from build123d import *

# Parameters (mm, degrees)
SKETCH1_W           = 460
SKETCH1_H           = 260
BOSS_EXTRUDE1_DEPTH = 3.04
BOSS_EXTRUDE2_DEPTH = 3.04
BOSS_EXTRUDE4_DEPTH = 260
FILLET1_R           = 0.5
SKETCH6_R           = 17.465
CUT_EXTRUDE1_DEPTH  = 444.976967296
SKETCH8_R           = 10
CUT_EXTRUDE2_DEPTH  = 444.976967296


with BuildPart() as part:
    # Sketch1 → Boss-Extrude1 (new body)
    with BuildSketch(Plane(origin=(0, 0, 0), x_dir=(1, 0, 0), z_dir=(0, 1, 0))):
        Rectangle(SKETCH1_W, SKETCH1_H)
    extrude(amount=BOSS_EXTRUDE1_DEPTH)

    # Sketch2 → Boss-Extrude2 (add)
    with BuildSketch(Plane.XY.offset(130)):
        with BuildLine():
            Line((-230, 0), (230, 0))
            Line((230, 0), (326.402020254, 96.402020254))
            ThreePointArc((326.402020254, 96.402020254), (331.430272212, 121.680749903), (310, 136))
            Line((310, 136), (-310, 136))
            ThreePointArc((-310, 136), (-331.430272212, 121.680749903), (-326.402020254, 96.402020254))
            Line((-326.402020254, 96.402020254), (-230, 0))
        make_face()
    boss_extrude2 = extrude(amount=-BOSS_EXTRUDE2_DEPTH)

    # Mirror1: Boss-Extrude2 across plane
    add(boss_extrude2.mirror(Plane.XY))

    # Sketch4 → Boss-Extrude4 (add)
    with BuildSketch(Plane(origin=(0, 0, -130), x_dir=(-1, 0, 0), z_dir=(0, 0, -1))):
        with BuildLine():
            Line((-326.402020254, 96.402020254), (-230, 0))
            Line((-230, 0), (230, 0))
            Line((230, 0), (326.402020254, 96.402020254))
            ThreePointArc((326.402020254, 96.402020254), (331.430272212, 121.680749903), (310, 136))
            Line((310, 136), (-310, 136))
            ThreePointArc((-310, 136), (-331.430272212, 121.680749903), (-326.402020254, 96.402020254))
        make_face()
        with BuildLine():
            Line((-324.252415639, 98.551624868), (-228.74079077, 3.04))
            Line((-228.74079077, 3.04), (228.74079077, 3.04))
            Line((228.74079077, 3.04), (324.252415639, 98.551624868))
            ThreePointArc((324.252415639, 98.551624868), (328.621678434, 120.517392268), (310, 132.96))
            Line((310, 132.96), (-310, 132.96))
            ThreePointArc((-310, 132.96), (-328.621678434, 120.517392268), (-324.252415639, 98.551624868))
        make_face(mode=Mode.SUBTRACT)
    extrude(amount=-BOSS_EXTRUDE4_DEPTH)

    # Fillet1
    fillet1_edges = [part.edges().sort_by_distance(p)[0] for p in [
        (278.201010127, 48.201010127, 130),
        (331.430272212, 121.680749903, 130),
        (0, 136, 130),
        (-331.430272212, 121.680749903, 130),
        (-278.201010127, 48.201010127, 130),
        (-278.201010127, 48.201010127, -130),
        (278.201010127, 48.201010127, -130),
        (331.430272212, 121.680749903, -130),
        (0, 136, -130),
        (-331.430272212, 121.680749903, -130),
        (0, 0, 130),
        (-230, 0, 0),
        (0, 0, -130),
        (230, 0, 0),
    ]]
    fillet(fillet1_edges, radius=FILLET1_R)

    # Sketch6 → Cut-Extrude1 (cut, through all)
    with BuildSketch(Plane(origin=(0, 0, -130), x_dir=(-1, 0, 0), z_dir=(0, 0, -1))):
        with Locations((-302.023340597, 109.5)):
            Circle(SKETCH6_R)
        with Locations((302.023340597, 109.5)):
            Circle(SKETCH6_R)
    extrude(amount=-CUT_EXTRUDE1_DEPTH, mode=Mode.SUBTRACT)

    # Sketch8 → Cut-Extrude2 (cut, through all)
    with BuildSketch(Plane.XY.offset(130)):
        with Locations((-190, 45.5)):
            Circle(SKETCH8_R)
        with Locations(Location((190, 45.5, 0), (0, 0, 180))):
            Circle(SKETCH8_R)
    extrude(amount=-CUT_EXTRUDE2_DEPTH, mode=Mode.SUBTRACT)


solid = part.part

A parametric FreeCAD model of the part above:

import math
import FreeCAD as App
import Part
import Sketcher
Q = App.Units.Quantity


def edges_at(feature, points):
    """Names of the edges that pass closest to the given points."""
    edges = feature.Shape.Edges
    near = lambda p: min(range(len(edges)), key=lambda i: edges[i].distToShape(Part.Vertex(*p))[0])
    return sorted({f"Edge{near(p) + 1}" for p in points})

doc = App.newDocument("Part")
params = doc.addObject("Spreadsheet::Sheet", "Params")
for row, (alias, value) in enumerate([
    ("sketch1_width", "460 mm"),
    ("sketch1_height", "260 mm"),
    ("pad1_length", "3.04 mm"),
    ("sketch2_width", "460 mm"),
    ("sketch2_width2", "620 mm"),
    ("pad2_length", "3.04 mm"),
    ("sketch3_width", "460 mm"),
    ("sketch3_width2", "620 mm"),
    ("pad3_length", "260 mm"),
    ("fillet_radius", "0.5 mm"),
    ("sketch4_diameter", "34.93 mm"),
    ("sketch5_diameter", "20 mm"),
], start=1):
    params.set(f"A{row}", alias)
    params.set(f"B{row}", "=" + value)
    params.setAlias(f"B{row}", alias)

body = doc.addObject("PartDesign::Body", "Body")

# Sketch on XZ plane
sketch1 = body.newObject("Sketcher::SketchObject", "Sketch")
sketch1.AttachmentSupport = (doc.getObject("XZ_Plane"), [""])
sketch1.MapMode = "FlatFace"
sketch1.addGeometry(Part.LineSegment(App.Vector(-230, -130, 0), App.Vector(-230, 130, 0)), False)
sketch1.addGeometry(Part.LineSegment(App.Vector(-230, 130, 0), App.Vector(230, 130, 0)), False)
sketch1.addGeometry(Part.LineSegment(App.Vector(230, 130, 0), App.Vector(230, -130, 0)), False)
sketch1.addGeometry(Part.LineSegment(App.Vector(230, -130, 0), App.Vector(-230, -130, 0)), False)
sketch1.addConstraint(Sketcher.Constraint("Coincident", 0, 2, 1, 1))
sketch1.addConstraint(Sketcher.Constraint("Coincident", 1, 2, 2, 1))
sketch1.addConstraint(Sketcher.Constraint("Coincident", 2, 2, 3, 1))
sketch1.addConstraint(Sketcher.Constraint("Coincident", 3, 2, 0, 1))
sketch1.addConstraint(Sketcher.Constraint("Vertical", 0))
sketch1.addConstraint(Sketcher.Constraint("Horizontal", 1))
sketch1.addConstraint(Sketcher.Constraint("Vertical", 2))
sketch1.addConstraint(Sketcher.Constraint("Horizontal", 3))
sketch1.addConstraint(Sketcher.Constraint("Symmetric", 0, 2, 2, 2, -1, 1))
sketch1.addConstraint(Sketcher.Constraint("DistanceX", 1, 1, 1, 2, Q("460 mm")))
sketch1.addConstraint(Sketcher.Constraint("DistanceY", 0, 1, 0, 2, Q("260 mm")))
sketch1.setExpression("Constraints[9]", "Params.sketch1_width")
sketch1.setExpression("Constraints[10]", "Params.sketch1_height")
pad1 = body.newObject("PartDesign::Pad", "Pad")
pad1.Profile = sketch1
pad1.setExpression("Length", "Params.pad1_length")
pad1.Reversed = True

# Sketch on XY plane
sketch2 = body.newObject("Sketcher::SketchObject", "Sketch001")
sketch2.AttachmentSupport = (doc.getObject("XY_Plane"), [""])
sketch2.MapMode = "FlatFace"
sketch2.AttachmentOffset = App.Placement(App.Vector(0, 0, 130), App.Rotation())
sketch2.addGeometry(Part.LineSegment(App.Vector(-230, 0, 0), App.Vector(230, 0, 0)), False)
sketch2.addGeometry(Part.LineSegment(App.Vector(230, 0, 0), App.Vector(326, 96, 0)), False)
sketch2.addGeometry(Part.ArcOfCircle(Part.Circle(App.Vector(310, 113, 0), App.Vector(0, 0, 1), 23), math.radians(-45), math.radians(90)), False)
sketch2.addGeometry(Part.LineSegment(App.Vector(310, 136, 0), App.Vector(-310, 136, 0)), False)
sketch2.addGeometry(Part.ArcOfCircle(Part.Circle(App.Vector(-310, 113, 0), App.Vector(0, 0, 1), 23), math.radians(90), math.radians(225)), False)
sketch2.addGeometry(Part.LineSegment(App.Vector(-326, 96, 0), App.Vector(-230, 0, 0)), False)
sketch2.addConstraint(Sketcher.Constraint("Coincident", 0, 2, 1, 1))
sketch2.addConstraint(Sketcher.Constraint("Tangent", 1, 2, 2, 1))
sketch2.addConstraint(Sketcher.Constraint("Tangent", 2, 2, 3, 1))
sketch2.addConstraint(Sketcher.Constraint("Tangent", 3, 2, 4, 1))
sketch2.addConstraint(Sketcher.Constraint("Tangent", 4, 2, 5, 1))
sketch2.addConstraint(Sketcher.Constraint("Coincident", 5, 2, 0, 1))
sketch2.addConstraint(Sketcher.Constraint("Horizontal", 0))
sketch2.addConstraint(Sketcher.Constraint("Horizontal", 3))
sketch2.addConstraint(Sketcher.Constraint("Equal", 2, 4))
sketch2.addConstraint(Sketcher.Constraint("Symmetric", 0, 2, 5, 2, -1, 1))
sketch2.addConstraint(Sketcher.Constraint("Perpendicular", 1, 5))
sketch2.addConstraint(Sketcher.Constraint("Horizontal", 1, 2, 4, 2))
sketch2.addConstraint(Sketcher.Constraint("DistanceX", 0, 1, 0, 2, Q("460 mm")))
sketch2.addConstraint(Sketcher.Constraint("DistanceX", 3, 2, 3, 1, Q("620 mm")))
sketch2.addConstraint(Sketcher.Constraint("DistanceY", -1, 1, 2, 2, Q("136 mm")))
sketch2.setExpression("Constraints[12]", "Params.sketch2_width")
sketch2.setExpression("Constraints[13]", "Params.sketch2_width2")
pad2 = body.newObject("PartDesign::Pad", "Pad001")
pad2.Profile = sketch2
pad2.setExpression("Length", "Params.pad2_length")
pad2.Reversed = True
doc.recompute()

mirrored = body.newObject("PartDesign::Mirrored", "Mirrored")
mirrored.Originals = [pad2]
mirrored.MirrorPlane = (doc.getObject("XY_Plane"), [""])
body.Tip = mirrored

# Sketch on XY plane
sketch3 = body.newObject("Sketcher::SketchObject", "Sketch002")
sketch3.AttachmentSupport = (doc.getObject("XY_Plane"), [""])
sketch3.MapMode = "FlatFace"
sketch3.AttachmentOffset = App.Placement(App.Vector(0, 0, -130), App.Rotation())
sketch3.addGeometry(Part.LineSegment(App.Vector(326, 96, 0), App.Vector(230, 0, 0)), False)
sketch3.addGeometry(Part.LineSegment(App.Vector(230, 0, 0), App.Vector(-230, 0, 0)), False)
sketch3.addGeometry(Part.LineSegment(App.Vector(-230, 0, 0), App.Vector(-326, 96, 0)), False)
sketch3.addGeometry(Part.ArcOfCircle(Part.Circle(App.Vector(-310, 113, 0), App.Vector(0, 0, 1), 23), math.radians(90), math.radians(225)), False)
sketch3.addGeometry(Part.LineSegment(App.Vector(-310, 136, 0), App.Vector(310, 136, 0)), False)
sketch3.addGeometry(Part.ArcOfCircle(Part.Circle(App.Vector(310, 113, 0), App.Vector(0, 0, 1), 23), math.radians(-45), math.radians(90)), False)
sketch3.addGeometry(Part.LineSegment(App.Vector(229, 3, 0), App.Vector(324, 99, 0)), False)
sketch3.addGeometry(Part.ArcOfCircle(Part.Circle(App.Vector(310, 113, 0), App.Vector(0, 0, 1), 20), math.radians(-45), math.radians(90)), False)
sketch3.addGeometry(Part.LineSegment(App.Vector(310, 133, 0), App.Vector(-310, 133, 0)), False)
sketch3.addGeometry(Part.ArcOfCircle(Part.Circle(App.Vector(-310, 113, 0), App.Vector(0, 0, 1), 20), math.radians(90), math.radians(225)), False)
sketch3.addGeometry(Part.LineSegment(App.Vector(-324, 99, 0), App.Vector(-229, 3, 0)), False)
sketch3.addGeometry(Part.LineSegment(App.Vector(-229, 3, 0), App.Vector(229, 3, 0)), False)
sketch3.addConstraint(Sketcher.Constraint("Coincident", 0, 2, 1, 1))
sketch3.addConstraint(Sketcher.Constraint("Coincident", 1, 2, 2, 1))
sketch3.addConstraint(Sketcher.Constraint("Tangent", 2, 2, 3, 2))
sketch3.addConstraint(Sketcher.Constraint("Tangent", 3, 1, 4, 1))
sketch3.addConstraint(Sketcher.Constraint("Tangent", 4, 2, 5, 2))
sketch3.addConstraint(Sketcher.Constraint("Tangent", 5, 1, 0, 1))
sketch3.addConstraint(Sketcher.Constraint("Tangent", 6, 2, 7, 1))
sketch3.addConstraint(Sketcher.Constraint("Tangent", 7, 2, 8, 1))
sketch3.addConstraint(Sketcher.Constraint("Tangent", 8, 2, 9, 1))
sketch3.addConstraint(Sketcher.Constraint("Tangent", 9, 2, 10, 1))
sketch3.addConstraint(Sketcher.Constraint("Coincident", 10, 2, 11, 1))
sketch3.addConstraint(Sketcher.Constraint("Coincident", 11, 2, 6, 1))
sketch3.addConstraint(Sketcher.Constraint("Horizontal", 1))
sketch3.addConstraint(Sketcher.Constraint("Horizontal", 4))
sketch3.addConstraint(Sketcher.Constraint("Horizontal", 8))
sketch3.addConstraint(Sketcher.Constraint("Horizontal", 11))
sketch3.addConstraint(Sketcher.Constraint("Coincident", 7, 3, 5, 3))
sketch3.addConstraint(Sketcher.Constraint("Coincident", 9, 3, 3, 3))
sketch3.addConstraint(Sketcher.Constraint("Equal", 3, 5))
sketch3.addConstraint(Sketcher.Constraint("Symmetric", 0, 2, 1, 2, -1, 1))
sketch3.addConstraint(Sketcher.Constraint("Symmetric", 6, 2, 9, 2, -2))
sketch3.addConstraint(Sketcher.Constraint("Perpendicular", 0, 2))
sketch3.addConstraint(Sketcher.Constraint("Perpendicular", 2, 6))
sketch3.addConstraint(Sketcher.Constraint("DistanceX", 1, 2, 1, 1, Q("460 mm")))
sketch3.addConstraint(Sketcher.Constraint("DistanceX", 4, 1, 4, 2, Q("620 mm")))
sketch3.addConstraint(Sketcher.Constraint("DistanceY", -1, 1, 3, 1, Q("136 mm")))
sketch3.addConstraint(Sketcher.Constraint("DistanceY", -1, 1, 7, 2, Q("132.96 mm")))
sketch3.addConstraint(Sketcher.Constraint("DistanceY", -1, 1, 10, 2, Q("3.04 mm")))
sketch3.setExpression("Constraints[23]", "Params.sketch3_width")
sketch3.setExpression("Constraints[24]", "Params.sketch3_width2")
pad3 = body.newObject("PartDesign::Pad", "Pad002")
pad3.Profile = sketch3
pad3.setExpression("Length", "Params.pad3_length")
doc.recompute()

fillet = body.newObject("PartDesign::Fillet", "Fillet")
fillet.Base = (pad3, edges_at(pad3, [
    (278.201, 48.201, 130),
    (331.43, 121.681, 130),
    (0, 136, 130),
    (-331.43, 121.681, 130),
    (-278.201, 48.201, 130),
    (-278.201, 48.201, -130),
    (278.201, 48.201, -130),
    (331.43, 121.681, -130),
    (0, 136, -130),
    (-331.43, 121.681, -130),
    (0, 0, 130),
    (-230, 0, 0),
    (0, 0, -130),
    (230, 0, 0),
]))
fillet.setExpression("Radius", "Params.fillet_radius")

# Sketch on XY plane
sketch4 = body.newObject("Sketcher::SketchObject", "Sketch003")
sketch4.AttachmentSupport = (doc.getObject("XY_Plane"), [""])
sketch4.MapMode = "FlatFace"
sketch4.AttachmentOffset = App.Placement(App.Vector(0, 0, -130), App.Rotation())
sketch4.addGeometry(Part.Circle(App.Vector(302, 110, 0), App.Vector(0, 0, 1), 17), False)
sketch4.addGeometry(Part.Circle(App.Vector(-302, 110, 0), App.Vector(0, 0, 1), 17), False)
sketch4.addConstraint(Sketcher.Constraint("Equal", 0, 1))
sketch4.addConstraint(Sketcher.Constraint("Symmetric", 0, 3, 1, 3, -2))
sketch4.addConstraint(Sketcher.Constraint("Diameter", 0, Q("34.93 mm")))
sketch4.addConstraint(Sketcher.Constraint("DistanceY", -1, 1, 0, 3, Q("109.5 mm")))
sketch4.addConstraint(Sketcher.Constraint("DistanceX", -1, 1, 0, 3, Q("302.023341 mm")))
sketch4.setExpression("Constraints[2]", "Params.sketch4_diameter")
pocket1 = body.newObject("PartDesign::Pocket", "Pocket")
pocket1.Profile = sketch4
pocket1.Type = "ThroughAll"
pocket1.Reversed = True

# Sketch on XY plane
sketch5 = body.newObject("Sketcher::SketchObject", "Sketch004")
sketch5.AttachmentSupport = (doc.getObject("XY_Plane"), [""])
sketch5.MapMode = "FlatFace"
sketch5.AttachmentOffset = App.Placement(App.Vector(0, 0, 130), App.Rotation())
sketch5.addGeometry(Part.Circle(App.Vector(-190, 46, 0), App.Vector(0, 0, 1), 10), False)
sketch5.addGeometry(Part.Circle(App.Vector(190, 46, 0), App.Vector(0, 0, 1), 10), False)
sketch5.addConstraint(Sketcher.Constraint("Equal", 0, 1))
sketch5.addConstraint(Sketcher.Constraint("Symmetric", 0, 3, 1, 3, -2))
sketch5.addConstraint(Sketcher.Constraint("Diameter", 0, Q("20 mm")))
sketch5.addConstraint(Sketcher.Constraint("DistanceX", 0, 3, -1, 1, Q("190 mm")))
sketch5.addConstraint(Sketcher.Constraint("DistanceY", -1, 1, 0, 3, Q("45.5 mm")))
sketch5.setExpression("Constraints[2]", "Params.sketch5_diameter")
pocket2 = body.newObject("PartDesign::Pocket", "Pocket001")
pocket2.Profile = sketch5
pocket2.Type = "ThroughAll"

doc.recompute()
